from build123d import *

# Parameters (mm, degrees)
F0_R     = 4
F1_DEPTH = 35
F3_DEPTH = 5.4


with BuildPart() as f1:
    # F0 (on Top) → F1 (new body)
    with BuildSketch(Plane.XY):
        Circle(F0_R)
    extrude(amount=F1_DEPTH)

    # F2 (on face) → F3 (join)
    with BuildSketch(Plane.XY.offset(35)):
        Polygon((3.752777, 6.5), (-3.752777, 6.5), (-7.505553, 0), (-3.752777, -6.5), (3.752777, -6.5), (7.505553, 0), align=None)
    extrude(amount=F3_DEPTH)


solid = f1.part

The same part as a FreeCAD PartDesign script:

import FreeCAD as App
import Part
import Sketcher
Q = App.Units.Quantity


def add_polygon(sketch, points):
    """Adds a closed chain of lines whose ends are joined by coincident constraints."""
    first, n = sketch.GeometryCount, len(points)
    for a, b in zip(points, points[1:] + points[:1]):
        sketch.addGeometry(Part.LineSegment(App.Vector(*a, 0), App.Vector(*b, 0)), False)
    for i in range(n):
        sketch.addConstraint(Sketcher.Constraint("Coincident", first + i, 2, first + (i + 1) % n, 1))

doc = App.newDocument("Part")
body = doc.addObject("PartDesign::Body", "Body")

sketch1 = body.newObject("Sketcher::SketchObject", "Sketch")
sketch1.AttachmentSupport = (doc.getObject("XY_Plane"), [""])
sketch1.MapMode = "FlatFace"
sketch1.addGeometry(Part.Circle(App.Vector(0, 0, 0), App.Vector(0, 0, 1), 4), False)
sketch1.addConstraint(Sketcher.Constraint("Coincident", 0, 3, -1, 1))
sketch1.addConstraint(Sketcher.Constraint("Diameter", 0, Q("8 mm")))
pad1 = body.newObject("PartDesign::Pad", "Pad")
pad1.Profile = sketch1
pad1.Length = 35

sketch2 = body.newObject("Sketcher::SketchObject", "Sketch001")
sketch2.AttachmentSupport = (doc.getObject("XY_Plane"), [""])
sketch2.MapMode = "FlatFace"
sketch2.AttachmentOffset = App.Placement(App.Vector(0, 0, 35), App.Rotation())
add_polygon(sketch2, [(4, 6), (-4, 6), (-8, 0), (-4, -6), (4, -6), (8, 0)])
sketch2.addConstraint(Sketcher.Constraint("Horizontal", 0))
sketch2.addConstraint(Sketcher.Constraint("Horizontal", 3))
sketch2.addConstraint(Sketcher.Constraint("Symmetric", 0, 2, 3, 2, -1, 1))
sketch2.addConstraint(Sketcher.Constraint("Symmetric", 1, 2, 4, 2, -1, 1))
sketch2.addConstraint(Sketcher.Constraint("PointOnObject", 1, 2, -1))
sketch2.addConstraint(Sketcher.Constraint("Parallel", 2, 5))
sketch2.addConstraint(Sketcher.Constraint("Vertical", 0, 2, 2, 2))
sketch2.addConstraint(Sketcher.Constraint("Angle", 1, Q("-119.999995 deg")))
sketch2.addConstraint(Sketcher.Constraint("DistanceY", 2, 2, 0, 2, Q("13 mm")))
sketch2.addConstraint(Sketcher.Constraint("DistanceX", 0, 2, 0, 1, Q("7.505554 mm")))
pad2 = body.newObject("PartDesign::Pad", "Pad001")
pad2.Profile = sketch2
pad2.Length = 5.4

doc.recompute()
